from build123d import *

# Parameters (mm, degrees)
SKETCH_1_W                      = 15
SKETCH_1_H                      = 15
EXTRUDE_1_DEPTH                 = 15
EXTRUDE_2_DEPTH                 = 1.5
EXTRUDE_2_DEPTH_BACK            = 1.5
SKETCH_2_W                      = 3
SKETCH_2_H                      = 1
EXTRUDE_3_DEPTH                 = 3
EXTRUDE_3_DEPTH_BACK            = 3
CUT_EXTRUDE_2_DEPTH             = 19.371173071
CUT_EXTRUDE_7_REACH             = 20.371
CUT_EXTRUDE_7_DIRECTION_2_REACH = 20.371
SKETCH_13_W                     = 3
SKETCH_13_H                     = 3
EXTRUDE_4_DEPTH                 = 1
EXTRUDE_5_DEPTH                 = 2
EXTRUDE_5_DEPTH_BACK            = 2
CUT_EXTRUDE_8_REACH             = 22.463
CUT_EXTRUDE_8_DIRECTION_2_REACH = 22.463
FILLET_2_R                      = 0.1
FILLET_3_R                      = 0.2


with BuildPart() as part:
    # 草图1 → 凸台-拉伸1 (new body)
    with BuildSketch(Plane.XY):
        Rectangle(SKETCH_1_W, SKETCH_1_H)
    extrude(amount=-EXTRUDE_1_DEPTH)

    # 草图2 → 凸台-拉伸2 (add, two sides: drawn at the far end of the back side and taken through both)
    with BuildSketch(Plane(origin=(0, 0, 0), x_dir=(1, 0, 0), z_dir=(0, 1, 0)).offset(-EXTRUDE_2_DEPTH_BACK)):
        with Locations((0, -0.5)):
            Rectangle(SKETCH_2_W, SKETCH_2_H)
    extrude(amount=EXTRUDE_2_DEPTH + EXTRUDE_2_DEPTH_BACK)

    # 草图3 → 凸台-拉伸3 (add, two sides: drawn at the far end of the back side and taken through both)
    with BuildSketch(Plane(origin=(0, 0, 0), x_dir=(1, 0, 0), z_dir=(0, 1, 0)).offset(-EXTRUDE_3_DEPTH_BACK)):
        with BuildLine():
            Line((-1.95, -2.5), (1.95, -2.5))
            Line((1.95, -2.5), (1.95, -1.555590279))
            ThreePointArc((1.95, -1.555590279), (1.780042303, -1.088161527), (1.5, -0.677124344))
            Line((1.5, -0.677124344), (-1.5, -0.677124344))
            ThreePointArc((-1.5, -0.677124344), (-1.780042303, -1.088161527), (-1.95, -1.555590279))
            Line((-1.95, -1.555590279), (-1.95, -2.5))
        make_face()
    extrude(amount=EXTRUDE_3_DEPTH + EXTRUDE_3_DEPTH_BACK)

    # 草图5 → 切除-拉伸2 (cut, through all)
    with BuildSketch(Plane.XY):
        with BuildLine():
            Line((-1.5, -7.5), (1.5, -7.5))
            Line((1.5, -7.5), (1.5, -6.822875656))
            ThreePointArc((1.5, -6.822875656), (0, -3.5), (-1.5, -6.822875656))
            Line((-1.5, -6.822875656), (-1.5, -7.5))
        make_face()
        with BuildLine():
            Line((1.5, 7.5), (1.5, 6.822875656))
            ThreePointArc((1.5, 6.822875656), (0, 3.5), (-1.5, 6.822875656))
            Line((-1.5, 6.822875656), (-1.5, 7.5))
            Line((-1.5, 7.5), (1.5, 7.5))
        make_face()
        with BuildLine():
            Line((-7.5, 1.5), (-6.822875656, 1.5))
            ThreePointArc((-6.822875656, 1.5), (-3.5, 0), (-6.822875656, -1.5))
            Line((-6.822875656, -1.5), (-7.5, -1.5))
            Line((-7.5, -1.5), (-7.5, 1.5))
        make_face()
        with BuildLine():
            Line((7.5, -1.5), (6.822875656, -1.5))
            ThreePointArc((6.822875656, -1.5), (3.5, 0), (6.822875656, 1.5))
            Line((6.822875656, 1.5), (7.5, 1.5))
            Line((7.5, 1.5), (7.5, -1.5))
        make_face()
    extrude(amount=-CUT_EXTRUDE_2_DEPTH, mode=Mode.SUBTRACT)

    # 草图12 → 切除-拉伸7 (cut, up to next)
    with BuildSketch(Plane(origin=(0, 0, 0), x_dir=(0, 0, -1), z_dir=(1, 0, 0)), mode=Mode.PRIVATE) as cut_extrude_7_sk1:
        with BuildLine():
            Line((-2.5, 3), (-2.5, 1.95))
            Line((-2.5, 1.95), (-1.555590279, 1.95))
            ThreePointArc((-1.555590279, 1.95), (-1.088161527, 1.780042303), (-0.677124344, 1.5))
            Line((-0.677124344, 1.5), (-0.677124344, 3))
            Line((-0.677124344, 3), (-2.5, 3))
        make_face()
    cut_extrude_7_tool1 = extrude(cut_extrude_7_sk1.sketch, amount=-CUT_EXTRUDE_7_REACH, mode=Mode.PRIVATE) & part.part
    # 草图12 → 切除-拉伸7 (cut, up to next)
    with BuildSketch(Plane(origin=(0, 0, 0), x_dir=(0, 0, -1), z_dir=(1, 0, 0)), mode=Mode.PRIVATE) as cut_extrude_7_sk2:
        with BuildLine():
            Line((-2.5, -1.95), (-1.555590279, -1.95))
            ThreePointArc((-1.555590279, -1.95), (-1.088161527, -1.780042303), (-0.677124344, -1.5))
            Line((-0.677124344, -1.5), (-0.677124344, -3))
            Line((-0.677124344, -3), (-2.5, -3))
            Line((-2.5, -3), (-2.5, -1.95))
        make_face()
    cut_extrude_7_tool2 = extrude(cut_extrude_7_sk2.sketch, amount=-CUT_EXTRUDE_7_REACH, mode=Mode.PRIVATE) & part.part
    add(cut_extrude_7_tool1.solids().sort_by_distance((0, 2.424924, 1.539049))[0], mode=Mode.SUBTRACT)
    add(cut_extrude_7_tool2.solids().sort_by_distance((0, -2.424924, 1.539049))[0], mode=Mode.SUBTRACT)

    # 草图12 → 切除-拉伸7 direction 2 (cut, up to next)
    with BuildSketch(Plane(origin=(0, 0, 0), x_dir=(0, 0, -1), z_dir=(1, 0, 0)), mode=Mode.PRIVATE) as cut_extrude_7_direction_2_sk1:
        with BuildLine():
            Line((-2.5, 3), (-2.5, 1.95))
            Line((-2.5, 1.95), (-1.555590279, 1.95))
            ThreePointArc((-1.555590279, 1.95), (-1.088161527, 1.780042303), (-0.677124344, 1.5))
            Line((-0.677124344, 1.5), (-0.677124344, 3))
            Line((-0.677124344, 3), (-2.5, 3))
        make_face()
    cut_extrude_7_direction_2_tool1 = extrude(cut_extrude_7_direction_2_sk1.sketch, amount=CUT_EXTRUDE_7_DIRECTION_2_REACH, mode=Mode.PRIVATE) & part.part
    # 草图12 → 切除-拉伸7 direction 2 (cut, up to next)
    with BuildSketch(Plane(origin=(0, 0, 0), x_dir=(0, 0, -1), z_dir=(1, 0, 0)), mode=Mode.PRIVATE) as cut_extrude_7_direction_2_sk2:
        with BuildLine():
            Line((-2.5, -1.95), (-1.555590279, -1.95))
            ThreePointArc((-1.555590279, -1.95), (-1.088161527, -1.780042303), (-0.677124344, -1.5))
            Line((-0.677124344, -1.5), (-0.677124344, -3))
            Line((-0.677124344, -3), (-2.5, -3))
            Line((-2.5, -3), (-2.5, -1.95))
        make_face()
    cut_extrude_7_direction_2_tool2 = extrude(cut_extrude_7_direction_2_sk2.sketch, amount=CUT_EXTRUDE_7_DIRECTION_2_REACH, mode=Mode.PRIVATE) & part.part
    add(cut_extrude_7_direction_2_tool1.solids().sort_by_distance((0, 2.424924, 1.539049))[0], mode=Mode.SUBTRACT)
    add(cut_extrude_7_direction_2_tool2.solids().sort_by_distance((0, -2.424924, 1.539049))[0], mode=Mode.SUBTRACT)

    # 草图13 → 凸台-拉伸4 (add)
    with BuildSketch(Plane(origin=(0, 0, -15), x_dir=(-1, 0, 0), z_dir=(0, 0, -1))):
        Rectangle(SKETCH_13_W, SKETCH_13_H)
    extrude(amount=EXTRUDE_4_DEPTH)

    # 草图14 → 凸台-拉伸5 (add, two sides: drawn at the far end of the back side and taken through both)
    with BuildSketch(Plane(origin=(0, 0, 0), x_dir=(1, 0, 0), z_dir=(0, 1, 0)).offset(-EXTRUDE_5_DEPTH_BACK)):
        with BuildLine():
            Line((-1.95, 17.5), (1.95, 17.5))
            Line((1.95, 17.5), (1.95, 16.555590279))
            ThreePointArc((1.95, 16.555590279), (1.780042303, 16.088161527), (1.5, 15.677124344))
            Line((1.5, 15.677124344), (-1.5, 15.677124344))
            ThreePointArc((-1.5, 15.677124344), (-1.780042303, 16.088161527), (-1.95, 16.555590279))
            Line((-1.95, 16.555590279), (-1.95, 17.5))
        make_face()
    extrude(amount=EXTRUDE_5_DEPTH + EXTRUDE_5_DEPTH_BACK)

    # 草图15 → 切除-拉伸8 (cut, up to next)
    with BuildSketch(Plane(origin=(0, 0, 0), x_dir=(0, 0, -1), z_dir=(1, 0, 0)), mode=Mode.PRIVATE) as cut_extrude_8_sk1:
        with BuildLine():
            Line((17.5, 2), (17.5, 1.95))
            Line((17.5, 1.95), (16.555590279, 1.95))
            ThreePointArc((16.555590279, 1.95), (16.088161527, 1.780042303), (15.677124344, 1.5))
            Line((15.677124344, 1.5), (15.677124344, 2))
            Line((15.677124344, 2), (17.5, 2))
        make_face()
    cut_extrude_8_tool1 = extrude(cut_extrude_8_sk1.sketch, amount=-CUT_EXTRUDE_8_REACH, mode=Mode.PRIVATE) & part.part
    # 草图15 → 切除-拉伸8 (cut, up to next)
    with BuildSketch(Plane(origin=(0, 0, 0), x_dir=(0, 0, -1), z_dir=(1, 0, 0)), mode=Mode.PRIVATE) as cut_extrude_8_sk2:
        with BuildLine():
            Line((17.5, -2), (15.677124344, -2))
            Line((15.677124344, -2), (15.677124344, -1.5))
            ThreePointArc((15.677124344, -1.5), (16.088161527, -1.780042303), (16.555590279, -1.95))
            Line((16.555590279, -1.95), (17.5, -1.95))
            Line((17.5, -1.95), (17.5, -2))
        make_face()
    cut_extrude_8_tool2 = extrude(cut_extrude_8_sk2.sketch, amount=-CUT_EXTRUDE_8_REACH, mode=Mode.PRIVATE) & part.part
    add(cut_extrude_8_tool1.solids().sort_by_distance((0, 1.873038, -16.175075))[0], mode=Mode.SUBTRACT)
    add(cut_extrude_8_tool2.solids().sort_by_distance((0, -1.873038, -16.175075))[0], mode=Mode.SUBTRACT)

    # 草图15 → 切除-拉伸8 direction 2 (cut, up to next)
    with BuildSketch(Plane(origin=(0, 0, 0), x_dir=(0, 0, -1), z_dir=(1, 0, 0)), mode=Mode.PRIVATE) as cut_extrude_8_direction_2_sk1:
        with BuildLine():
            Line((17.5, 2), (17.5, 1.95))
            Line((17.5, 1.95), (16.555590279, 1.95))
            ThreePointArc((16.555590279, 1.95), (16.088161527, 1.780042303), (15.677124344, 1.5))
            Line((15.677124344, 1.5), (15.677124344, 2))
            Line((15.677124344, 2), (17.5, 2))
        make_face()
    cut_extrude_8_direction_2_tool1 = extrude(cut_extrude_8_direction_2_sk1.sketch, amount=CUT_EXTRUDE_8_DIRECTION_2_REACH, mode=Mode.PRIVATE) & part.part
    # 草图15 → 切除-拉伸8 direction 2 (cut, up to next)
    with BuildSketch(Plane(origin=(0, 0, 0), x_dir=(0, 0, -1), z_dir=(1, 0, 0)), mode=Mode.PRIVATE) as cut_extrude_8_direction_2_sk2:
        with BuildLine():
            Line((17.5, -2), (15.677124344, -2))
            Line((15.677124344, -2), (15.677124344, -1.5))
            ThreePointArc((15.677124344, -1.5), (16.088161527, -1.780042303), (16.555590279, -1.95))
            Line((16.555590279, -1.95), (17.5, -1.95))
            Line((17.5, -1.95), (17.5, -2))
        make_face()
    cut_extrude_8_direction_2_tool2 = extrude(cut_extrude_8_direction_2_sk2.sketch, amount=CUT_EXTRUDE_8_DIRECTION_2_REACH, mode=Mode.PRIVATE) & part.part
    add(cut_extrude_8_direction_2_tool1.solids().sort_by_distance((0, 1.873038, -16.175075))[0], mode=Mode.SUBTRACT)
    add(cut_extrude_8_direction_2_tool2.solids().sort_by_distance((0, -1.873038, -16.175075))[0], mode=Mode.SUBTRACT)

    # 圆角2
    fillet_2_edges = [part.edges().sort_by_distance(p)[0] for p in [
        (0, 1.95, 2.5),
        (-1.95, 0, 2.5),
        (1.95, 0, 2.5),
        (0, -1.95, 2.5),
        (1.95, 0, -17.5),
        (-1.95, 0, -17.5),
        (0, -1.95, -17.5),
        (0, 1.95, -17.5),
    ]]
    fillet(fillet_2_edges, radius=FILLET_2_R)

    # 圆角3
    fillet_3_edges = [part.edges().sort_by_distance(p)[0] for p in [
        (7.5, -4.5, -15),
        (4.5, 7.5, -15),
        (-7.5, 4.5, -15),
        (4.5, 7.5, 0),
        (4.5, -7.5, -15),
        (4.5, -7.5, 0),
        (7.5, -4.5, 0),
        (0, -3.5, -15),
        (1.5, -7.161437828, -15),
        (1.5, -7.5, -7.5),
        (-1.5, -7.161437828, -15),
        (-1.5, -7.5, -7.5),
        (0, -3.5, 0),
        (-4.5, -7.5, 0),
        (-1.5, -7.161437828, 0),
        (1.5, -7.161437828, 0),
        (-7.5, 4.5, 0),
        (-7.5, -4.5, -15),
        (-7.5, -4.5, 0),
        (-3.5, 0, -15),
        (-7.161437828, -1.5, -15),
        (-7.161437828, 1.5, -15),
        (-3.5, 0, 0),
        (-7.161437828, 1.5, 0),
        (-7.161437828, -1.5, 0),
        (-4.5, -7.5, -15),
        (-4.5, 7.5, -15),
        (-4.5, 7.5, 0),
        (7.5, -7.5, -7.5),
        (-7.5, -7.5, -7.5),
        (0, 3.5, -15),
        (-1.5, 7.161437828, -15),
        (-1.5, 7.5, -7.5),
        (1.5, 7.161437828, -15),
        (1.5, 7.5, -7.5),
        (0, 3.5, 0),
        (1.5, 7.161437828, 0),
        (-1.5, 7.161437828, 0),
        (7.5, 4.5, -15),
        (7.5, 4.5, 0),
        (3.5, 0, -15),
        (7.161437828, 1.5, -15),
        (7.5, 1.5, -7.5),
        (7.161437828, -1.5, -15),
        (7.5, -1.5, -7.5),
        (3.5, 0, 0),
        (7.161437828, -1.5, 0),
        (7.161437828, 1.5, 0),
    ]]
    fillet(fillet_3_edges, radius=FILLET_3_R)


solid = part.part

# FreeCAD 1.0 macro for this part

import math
import FreeCAD as App
import Part
import Sketcher

V = App.Vector


def edges_at(feature, points):
    """Names of the edges that pass closest to the given points."""
    edges = feature.Shape.Edges
    near = lambda p: min(range(len(edges)), key=lambda i: edges[i].distToShape(Part.Vertex(*p))[0])
    return sorted({f"Edge{near(p) + 1}" for p in points})

doc = App.newDocument("Part")
body = doc.addObject("PartDesign::Body", "Body")

# Sketch on XY plane
sketch1 = body.newObject("Sketcher::SketchObject", "Sketch")
sketch1.AttachmentSupport = (doc.getObject("XY_Plane"), [""])
sketch1.MapMode = "FlatFace"
sketch1.addGeometry([
    Part.LineSegment(V(-8, 8, 0), V(-8, -8, 0)),
    Part.LineSegment(V(-8, -8, 0), V(8, -8, 0)),
    Part.LineSegment(V(8, -8, 0), V(8, 8, 0)),
    Part.LineSegment(V(8, 8, 0), V(-8, 8, 0)),
], False)
sketch1.addConstraint([
    Sketcher.Constraint("Coincident", 0, 2, 1, 1),
    Sketcher.Constraint("Coincident", 1, 2, 2, 1),
    Sketcher.Constraint("Coincident", 2, 2, 3, 1),
    Sketcher.Constraint("Coincident", 3, 2, 0, 1),
    Sketcher.Constraint("Vertical", 0),
    Sketcher.Constraint("Horizontal", 1),
    Sketcher.Constraint("Vertical", 2),
    Sketcher.Constraint("Horizontal", 3),
    Sketcher.Constraint("Symmetric", 0, 2, 2, 2, -1, 1),
    Sketcher.Constraint("Equal", 3, 0),
    Sketcher.Constraint("DistanceX", 1, 1, 1, 2, 15.0),
])
pad1 = body.newObject("PartDesign::Pad", "Pad")
pad1.Profile = sketch1
pad1.Length = 15
pad1.Reversed = True

# Sketch on XZ plane
sketch2 = body.newObject("Sketcher::SketchObject", "Sketch001")
sketch2.AttachmentSupport = (doc.getObject("XZ_Plane"), [""])
sketch2.MapMode = "FlatFace"
sketch2.addGeometry([
    Part.LineSegment(V(-1.5, 0, 0), V(-1.5, 1, 0)),
    Part.LineSegment(V(-1.5, 1, 0), V(1.5, 1, 0)),
    Part.LineSegment(V(1.5, 1, 0), V(1.5, 0, 0)),
    Part.LineSegment(V(1.5, 0, 0), V(-1.5, 0, 0)),
], False)
sketch2.addConstraint([
    Sketcher.Constraint("Coincident", 0, 2, 1, 1),
    Sketcher.Constraint("Coincident", 1, 2, 2, 1),
    Sketcher.Constraint("Coincident", 2, 2, 3, 1),
    Sketcher.Constraint("Coincident", 3, 2, 0, 1),
    Sketcher.Constraint("Vertical", 0),
    Sketcher.Constraint("Horizontal", 1),
    Sketcher.Constraint("Vertical", 2),
    Sketcher.Constraint("Horizontal", 3),
    Sketcher.Constraint("Symmetric", 2, 2, 3, 2, -1, 1),
    Sketcher.Constraint("DistanceX", 1, 1, 1, 2, 3.0),
    Sketcher.Constraint("DistanceY", 0, 1, 0, 2, 1.0),
])
pad2 = body.newObject("PartDesign::Pad", "Pad001")
pad2.Profile = sketch2
pad2.Type = "TwoLengths"
pad2.Length = 1.5
pad2.Length2 = 1.5
pad2.Reversed = True

# Sketch on XZ plane
sketch3 = body.newObject("Sketcher::SketchObject", "Sketch002")
sketch3.AttachmentSupport = (doc.getObject("XZ_Plane"), [""])
sketch3.MapMode = "FlatFace"
sketch3.addGeometry([
    Part.LineSegment(V(-1.9, 2.5, 0), V(1.9, 2.5, 0)),  # 0
    Part.LineSegment(V(1.9, 2.5, 0), V(1.9, 1.6, 0)),  # 1
    Part.ArcOfCircle(Part.Circle(V(0, 2, 0), V(0, 0, 1), 2), math.radians(-41), math.radians(-13)),  # 2
    Part.LineSegment(V(1.5, 0.7, 0), V(-1.5, 0.7, 0)),  # 3
    Part.ArcOfCircle(Part.Circle(V(0, 2, 0), V(0, 0, 1), 2), math.radians(-167), math.radians(-139)),  # 4
    Part.LineSegment(V(-1.9, 1.6, 0), V(-1.9, 2.5, 0)),  # 5
], False)
sketch3.addConstraint([
    Sketcher.Constraint("Coincident", 0, 2, 1, 1),
    Sketcher.Constraint("Coincident", 1, 2, 2, 2),
    Sketcher.Constraint("Coincident", 2, 1, 3, 1),
    Sketcher.Constraint("Coincident", 3, 2, 4, 2),
    Sketcher.Constraint("Coincident", 4, 1, 5, 1),
    Sketcher.Constraint("Coincident", 5, 2, 0, 1),
    Sketcher.Constraint("Horizontal", 0),
    Sketcher.Constraint("Vertical", 1),
    Sketcher.Constraint("Horizontal", 3),
    Sketcher.Constraint("Vertical", 5),
    Sketcher.Constraint("Coincident", 4, 3, 2, 3),
    Sketcher.Constraint("Equal", 2, 4),
    Sketcher.Constraint("Symmetric", 1, 2, 4, 1, -2),
    Sketcher.Constraint("Radius", 2, 2.0),
    Sketcher.Constraint("DistanceX", 3, 2, 3, 1, 3.0),
    Sketcher.Constraint("DistanceX", 0, 1, 0, 2, 3.9),
    Sketcher.Constraint("DistanceY", -1, 1, 2, 3, 2.0),
    Sketcher.Constraint("DistanceY", -1, 1, 0, 2, 2.5),
])
pad3 = body.newObject("PartDesign::Pad", "Pad002")
pad3.Profile = sketch3
pad3.Type = "TwoLengths"
pad3.Length = 3
pad3.Length2 = 3
pad3.Reversed = True

# Sketch on XY plane
sketch4 = body.newObject("Sketcher::SketchObject", "Sketch003")
sketch4.AttachmentSupport = (doc.getObject("XY_Plane"), [""])
sketch4.MapMode = "FlatFace"
sketch4.addGeometry([
    Part.LineSegment(V(-1.5, -7.5, 0), V(1.5, -7.5, 0)),  # 0
    Part.LineSegment(V(1.5, -7.5, 0), V(1.5, -6.8, 0)),  # 1
    Part.ArcOfCircle(Part.Circle(V(0, -5.5, 0), V(0, 0, 1), 2), math.radians(-41), math.radians(221)),  # 2
    Part.LineSegment(V(-1.5, -6.8, 0), V(-1.5, -7.5, 0)),  # 3
    Part.LineSegment(V(1.5, 6.8, 0), V(1.5, 7.5, 0)),  # 4
    Part.LineSegment(V(1.5, 7.5, 0), V(-1.5, 7.5, 0)),  # 5
    Part.LineSegment(V(-1.5, 7.5, 0), V(-1.5, 6.8, 0)),  # 6
    Part.ArcOfCircle(Part.Circle(V(0, 5.5, 0), V(0, 0, 1), 2), math.radians(139), math.radians(401)),  # 7
    Part.LineSegment(V(-6.8, 1.5, 0), V(-7.5, 1.5, 0)),  # 8
    Part.LineSegment(V(-7.5, 1.5, 0), V(-7.5, -1.5, 0)),  # 9
    Part.LineSegment(V(-7.5, -1.5, 0), V(-6.8, -1.5, 0)),  # 10
    Part.ArcOfCircle(Part.Circle(V(-5.5, 0, 0), V(0, 0, 1), 2), math.radians(-131), math.radians(131)),  # 11
    Part.LineSegment(V(6.8, -1.5, 0), V(7.5, -1.5, 0)),  # 12
    Part.LineSegment(V(7.5, -1.5, 0), V(7.5, 1.5, 0)),  # 13
    Part.LineSegment(V(7.5, 1.5, 0), V(6.8, 1.5, 0)),  # 14
    Part.ArcOfCircle(Part.Circle(V(5.5, 0, 0), V(0, 0, 1), 2), math.radians(49), math.radians(311)),  # 15
], False)
sketch4.addConstraint([
    Sketcher.Constraint("Coincident", 0, 2, 1, 1),
    Sketcher.Constraint("Coincident", 1, 2, 2, 1),
    Sketcher.Constraint("Coincident", 2, 2, 3, 1),
    Sketcher.Constraint("Coincident", 3, 2, 0, 1),
    Sketcher.Constraint("Coincident", 4, 2, 5, 1),
    Sketcher.Constraint("Coincident", 5, 2, 6, 1),
    Sketcher.Constraint("Coincident", 6, 2, 7, 1),
    Sketcher.Constraint("Coincident", 7, 2, 4, 1),
    Sketcher.Constraint("Coincident", 8, 2, 9, 1),
    Sketcher.Constraint("Coincident", 9, 2, 10, 1),
    Sketcher.Constraint("Coincident", 10, 2, 11, 1),
    Sketcher.Constraint("Coincident", 11, 2, 8, 1),
    Sketcher.Constraint("Coincident", 12, 2, 13, 1),
    Sketcher.Constraint("Coincident", 13, 2, 14, 1),
    Sketcher.Constraint("Coincident", 14, 2, 15, 1),
    Sketcher.Constraint("Coincident", 15, 2, 12, 1),
    Sketcher.Constraint("Horizontal", 0),
    Sketcher.Constraint("Vertical", 1),
    Sketcher.Constraint("Vertical", 3),
    Sketcher.Constraint("Vertical", 4),
    Sketcher.Constraint("Horizontal", 5),
    Sketcher.Constraint("Vertical", 6),
    Sketcher.Constraint("Horizontal", 8),
    Sketcher.Constraint("Vertical", 9),
    Sketcher.Constraint("Horizontal", 10),
    Sketcher.Constraint("Horizontal", 12),
    Sketcher.Constraint("Vertical", 13),
    Sketcher.Constraint("Horizontal", 14),
    Sketcher.Constraint("Equal", 2, 7),
    Sketcher.Constraint("Equal", 7, 11),
    Sketcher.Constraint("Equal", 11, 15),
    Sketcher.Constraint("Symmetric", 2, 3, 7, 3, -1, 1),
    Sketcher.Constraint("Symmetric", 11, 3, 15, 3, -1, 1),
    Sketcher.Constraint("Symmetric", 3, 2, 4, 2, -1, 1),
    Sketcher.Constraint("Symmetric", 8, 2, 12, 2, -1, 1),
    Sketcher.Constraint("Symmetric", 1, 2, 2, 2, -2),
    Sketcher.Constraint("Symmetric", 11, 2, 14, 2, -2),
    Sketcher.Constraint("Horizontal", 6, 2, 7, 2),
    Sketcher.Constraint("Horizontal", 10, 2, 12, 2),
    Sketcher.Constraint("Equal", 14, 1),
    Sketcher.Constraint("Equal", 5, 9),
    Sketcher.Constraint("Radius", 2, 2.0),
    Sketcher.Constraint("DistanceX", 0, 1, 0, 2, 3.0),
    Sketcher.Constraint("DistanceY", 2, 3, 7, 3, 11.0),
    Sketcher.Constraint("DistanceX", 11, 3, 15, 3, 11.0),
    Sketcher.Constraint("DistanceY", 0, 2, 2, 3, 2.0),
])
pocket1 = body.newObject("PartDesign::Pocket", "Pocket")
pocket1.Profile = sketch4
pocket1.Type = "ThroughAll"

# Sketch on YZ plane
sketch5 = body.newObject("Sketcher::SketchObject", "Sketch004")
sketch5.AttachmentSupport = (doc.getObject("YZ_Plane"), [""])
sketch5.MapMode = "FlatFace"
sketch5.addGeometry([
    Part.LineSegment(V(3, 2.5, 0), V(1.9, 2.5, 0)),  # 0
    Part.LineSegment(V(1.9, 2.5, 0), V(1.9, 1.6, 0)),  # 1
    Part.ArcOfCircle(Part.Circle(V(0, 2, 0), V(0, 0, 1), 2), math.radians(-41), math.radians(-13)),  # 2
    Part.LineSegment(V(1.5, 0.7, 0), V(3, 0.7, 0)),  # 3
    Part.LineSegment(V(3, 0.7, 0), V(3, 2.5, 0)),  # 4
], False)
sketch5.addConstraint([
    Sketcher.Constraint("Coincident", 0, 2, 1, 1),
    Sketcher.Constraint("Coincident", 1, 2, 2, 2),
    Sketcher.Constraint("Coincident", 2, 1, 3, 1),
    Sketcher.Constraint("Coincident", 3, 2, 4, 1),
    Sketcher.Constraint("Coincident", 4, 2, 0, 1),
    Sketcher.Constraint("Horizontal", 0),
    Sketcher.Constraint("Vertical", 1),
    Sketcher.Constraint("Horizontal", 3),
    Sketcher.Constraint("Vertical", 4),
    Sketcher.Constraint("PointOnObject", 2, 3, -2),
    Sketcher.Constraint("Radius", 2, 2.0),
    Sketcher.Constraint("DistanceX", 3, 1, 3, 2, 1.5),
    Sketcher.Constraint("DistanceY", -1, 1, 2, 3, 2.0),
    Sketcher.Constraint("DistanceX", -1, 1, 3, 2, 3.0),
    Sketcher.Constraint("DistanceX", 0, 2, 0, 1, 1.05),
    Sketcher.Constraint("DistanceY", -1, 1, 0, 2, 2.5),
])
pocket2 = body.newObject("PartDesign::Pocket", "Pocket001")
pocket2.Profile = sketch5
pocket2.Type = "UpToFirst"

# Sketch on YZ plane
sketch6 = body.newObject("Sketcher::SketchObject", "Sketch005")
sketch6.AttachmentSupport = (doc.getObject("YZ_Plane"), [""])
sketch6.MapMode = "FlatFace"
sketch6.addGeometry([
    Part.LineSegment(V(-1.9, 1.6, 0), V(-1.9, 2.5, 0)),  # 0
    Part.LineSegment(V(-1.9, 2.5, 0), V(-3, 2.5, 0)),  # 1
    Part.LineSegment(V(-3, 2.5, 0), V(-3, 0.7, 0)),  # 2
    Part.LineSegment(V(-3, 0.7, 0), V(-1.5, 0.7, 0)),  # 3
    Part.ArcOfCircle(Part.Circle(V(0, 2, 0), V(0, 0, 1), 2), math.radians(-167), math.radians(-139)),  # 4
], False)
sketch6.addConstraint([
    Sketcher.Constraint("Coincident", 0, 2, 1, 1),
    Sketcher.Constraint("Coincident", 1, 2, 2, 1),
    Sketcher.Constraint("Coincident", 2, 2, 3, 1),
    Sketcher.Constraint("Coincident", 3, 2, 4, 2),
    Sketcher.Constraint("Coincident", 4, 1, 0, 1),
    Sketcher.Constraint("Vertical", 0),
    Sketcher.Constraint("Horizontal", 1),
    Sketcher.Constraint("Vertical", 2),
    Sketcher.Constraint("Horizontal", 3),
    Sketcher.Constraint("PointOnObject", 4, 3, -2),
    Sketcher.Constraint("Radius", 4, 2.0),
    Sketcher.Constraint("DistanceX", 3, 1, 3, 2, 1.5),
    Sketcher.Constraint("DistanceY", -1, 1, 4, 3, 2.0),
    Sketcher.Constraint("DistanceX", 1, 2, -1, 1, 3.0),
    Sketcher.Constraint("DistanceX", 1, 2, 1, 1, 1.05),
    Sketcher.Constraint("DistanceY", -1, 1, 0, 2, 2.5),
])
pocket3 = body.newObject("PartDesign::Pocket", "Pocket002")
pocket3.Profile = sketch6
pocket3.Type = "UpToFirst"

# Sketch on YZ plane
sketch7 = body.newObject("Sketcher::SketchObject", "Sketch006")
sketch7.AttachmentSupport = (doc.getObject("YZ_Plane"), [""])
sketch7.MapMode = "FlatFace"
sketch7.addGeometry([
    Part.LineSegment(V(3, 2.5, 0), V(1.9, 2.5, 0)),  # 0
    Part.LineSegment(V(1.9, 2.5, 0), V(1.9, 1.6, 0)),  # 1
    Part.ArcOfCircle(Part.Circle(V(0, 2, 0), V(0, 0, 1), 2), math.radians(-41), math.radians(-13)),  # 2
    Part.LineSegment(V(1.5, 0.7, 0), V(3, 0.7, 0)),  # 3
    Part.LineSegment(V(3, 0.7, 0), V(3, 2.5, 0)),  # 4
], False)
sketch7.addConstraint([
    Sketcher.Constraint("Coincident", 0, 2, 1, 1),
    Sketcher.Constraint("Coincident", 1, 2, 2, 2),
    Sketcher.Constraint("Coincident", 2, 1, 3, 1),
    Sketcher.Constraint("Coincident", 3, 2, 4, 1),
    Sketcher.Constraint("Coincident", 4, 2, 0, 1),
    Sketcher.Constraint("Horizontal", 0),
    Sketcher.Constraint("Vertical", 1),
    Sketcher.Constraint("Horizontal", 3),
    Sketcher.Constraint("Vertical", 4),
    Sketcher.Constraint("PointOnObject", 2, 3, -2),
    Sketcher.Constraint("Radius", 2, 2.0),
    Sketcher.Constraint("DistanceX", 3, 1, 3, 2, 1.5),
    Sketcher.Constraint("DistanceY", -1, 1, 2, 3, 2.0),
    Sketcher.Constraint("DistanceX", -1, 1, 3, 2, 3.0),
    Sketcher.Constraint("DistanceX", 0, 2, 0, 1, 1.05),
    Sketcher.Constraint("DistanceY", -1, 1, 0, 2, 2.5),
])
pocket4 = body.newObject("PartDesign::Pocket", "Pocket003")
pocket4.Profile = sketch7
pocket4.Type = "UpToFirst"
pocket4.Reversed = True

# Sketch on YZ plane
sketch8 = body.newObject("Sketcher::SketchObject", "Sketch007")
sketch8.AttachmentSupport = (doc.getObject("YZ_Plane"), [""])
sketch8.MapMode = "FlatFace"
sketch8.addGeometry([
    Part.LineSegment(V(-1.9, 1.6, 0), V(-1.9, 2.5, 0)),  # 0
    Part.LineSegment(V(-1.9, 2.5, 0), V(-3, 2.5, 0)),  # 1
    Part.LineSegment(V(-3, 2.5, 0), V(-3, 0.7, 0)),  # 2
    Part.LineSegment(V(-3, 0.7, 0), V(-1.5, 0.7, 0)),  # 3
    Part.ArcOfCircle(Part.Circle(V(0, 2, 0), V(0, 0, 1), 2), math.radians(-167), math.radians(-139)),  # 4
], False)
sketch8.addConstraint([
    Sketcher.Constraint("Coincident", 0, 2, 1, 1),
    Sketcher.Constraint("Coincident", 1, 2, 2, 1),
    Sketcher.Constraint("Coincident", 2, 2, 3, 1),
    Sketcher.Constraint("Coincident", 3, 2, 4, 2),
    Sketcher.Constraint("Coincident", 4, 1, 0, 1),
    Sketcher.Constraint("Vertical", 0),
    Sketcher.Constraint("Horizontal", 1),
    Sketcher.Constraint("Vertical", 2),
    Sketcher.Constraint("Horizontal", 3),
    Sketcher.Constraint("PointOnObject", 4, 3, -2),
    Sketcher.Constraint("Radius", 4, 2.0),
    Sketcher.Constraint("DistanceX", 3, 1, 3, 2, 1.5),
    Sketcher.Constraint("DistanceY", -1, 1, 4, 3, 2.0),
    Sketcher.Constraint("DistanceX", 1, 2, -1, 1, 3.0),
    Sketcher.Constraint("DistanceX", 1, 2, 1, 1, 1.05),
    Sketcher.Constraint("DistanceY", -1, 1, 0, 2, 2.5),
])
pocket5 = body.newObject("PartDesign::Pocket", "Pocket004")
pocket5.Profile = sketch8
pocket5.Type = "UpToFirst"
pocket5.Reversed = True

# Sketch on XY plane
sketch9 = body.newObject("Sketcher::SketchObject", "Sketch008")
sketch9.AttachmentSupport = (doc.getObject("XY_Plane"), [""])
sketch9.MapMode = "FlatFace"
sketch9.AttachmentOffset = App.Placement(V(0, 0, -15), App.Rotation())
sketch9.addGeometry([
    Part.LineSegment(V(1.5, 1.5, 0), V(1.5, -1.5, 0)),
    Part.LineSegment(V(1.5, -1.5, 0), V(-1.5, -1.5, 0)),
    Part.LineSegment(V(-1.5, -1.5, 0), V(-1.5, 1.5, 0)),
    Part.LineSegment(V(-1.5, 1.5, 0), V(1.5, 1.5, 0)),
], False)
sketch9.addConstraint([
    Sketcher.Constraint("Coincident", 0, 2, 1, 1),
    Sketcher.Constraint("Coincident", 1, 2, 2, 1),
    Sketcher.Constraint("Coincident", 2, 2, 3, 1),
    Sketcher.Constraint("Coincident", 3, 2, 0, 1),
    Sketcher.Constraint("Vertical", 0),
    Sketcher.Constraint("Horizontal", 1),
    Sketcher.Constraint("Vertical", 2),
    Sketcher.Constraint("Horizontal", 3),
    Sketcher.Constraint("Symmetric", 0, 2, 2, 2, -1, 1),
    Sketcher.Constraint("Equal", 3, 0),
    Sketcher.Constraint("DistanceX", 1, 2, 1, 1, 3.0),
])
pad4 = body.newObject("PartDesign::Pad", "Pad003")
pad4.Profile = sketch9
pad4.Length = 1
pad4.Reversed = True

# Sketch on XZ plane
sketch10 = body.newObject("Sketcher::SketchObject", "Sketch009")
sketch10.AttachmentSupport = (doc.getObject("XZ_Plane"), [""])
sketch10.MapMode = "FlatFace"
sketch10.addGeometry([
    Part.LineSegment(V(1.9, -17.5, 0), V(-1.9, -17.5, 0)),  # 0
    Part.LineSegment(V(-1.9, -17.5, 0), V(-1.9, -16.6, 0)),  # 1
    Part.ArcOfCircle(Part.Circle(V(0, -17, 0), V(0, 0, 1), 2), math.radians(139), math.radians(167)),  # 2
    Part.LineSegment(V(-1.5, -15.7, 0), V(1.5, -15.7, 0)),  # 3
    Part.ArcOfCircle(Part.Circle(V(0, -17, 0), V(0, 0, 1), 2), math.radians(13), math.radians(41)),  # 4
    Part.LineSegment(V(1.9, -16.6, 0), V(1.9, -17.5, 0)),  # 5
], False)
sketch10.addConstraint([
    Sketcher.Constraint("Coincident", 0, 2, 1, 1),
    Sketcher.Constraint("Coincident", 1, 2, 2, 2),
    Sketcher.Constraint("Coincident", 2, 1, 3, 1),
    Sketcher.Constraint("Coincident", 3, 2, 4, 2),
    Sketcher.Constraint("Coincident", 4, 1, 5, 1),
    Sketcher.Constraint("Coincident", 5, 2, 0, 1),
    Sketcher.Constraint("Horizontal", 0),
    Sketcher.Constraint("Vertical", 1),
    Sketcher.Constraint("Horizontal", 3),
    Sketcher.Constraint("Vertical", 5),
    Sketcher.Constraint("Coincident", 4, 3, 2, 3),
    Sketcher.Constraint("Equal", 2, 4),
    Sketcher.Constraint("Symmetric", 1, 2, 4, 1, -2),
    Sketcher.Constraint("Radius", 2, 2.0),
    Sketcher.Constraint("DistanceX", 3, 1, 3, 2, 3.0),
    Sketcher.Constraint("DistanceX", 0, 2, 0, 1, 3.9),
    Sketcher.Constraint("DistanceY", 2, 3, -1, 1, 17.0),
    Sketcher.Constraint("DistanceY", 0, 2, -1, 1, 17.5),
])
pad5 = body.newObject("PartDesign::Pad", "Pad004")
pad5.Profile = sketch10
pad5.Type = "TwoLengths"
pad5.Length = 2
pad5.Length2 = 2
pad5.Reversed = True

# Sketch on YZ plane
sketch11 = body.newObject("Sketcher::SketchObject", "Sketch010")
sketch11.AttachmentSupport = (doc.getObject("YZ_Plane"), [""])
sketch11.MapMode = "FlatFace"
sketch11.addGeometry([
    Part.LineSegment(V(1.95, -17.5, 0), V(2, -17.5, 0)),  # 0
    Part.LineSegment(V(2, -17.5, 0), V(2, -15.68, 0)),  # 1
    Part.LineSegment(V(2, -15.68, 0), V(1.5, -15.68, 0)),  # 2
    Part.ArcOfCircle(Part.Circle(V(0, -17, 0), V(0, 0, 1), 2), math.radians(13), math.radians(41)),  # 3
    Part.LineSegment(V(1.95, -16.56, 0), V(1.95, -17.5, 0)),  # 4
], False)
sketch11.addConstraint([
    Sketcher.Constraint("Coincident", 0, 2, 1, 1),
    Sketcher.Constraint("Coincident", 1, 2, 2, 1),
    Sketcher.Constraint("Coincident", 2, 2, 3, 2),
    Sketcher.Constraint("Coincident", 3, 1, 4, 1),
    Sketcher.Constraint("Coincident", 4, 2, 0, 1),
    Sketcher.Constraint("Horizontal", 0),
    Sketcher.Constraint("Vertical", 1),
    Sketcher.Constraint("Horizontal", 2),
    Sketcher.Constraint("Vertical", 4),
    Sketcher.Constraint("PointOnObject", 3, 3, -2),
    Sketcher.Constraint("Radius", 3, 2.0),
    Sketcher.Constraint("DistanceX", 2, 2, 2, 1, 0.5),
    Sketcher.Constraint("DistanceY", 3, 3, -1, 1, 17.0),
    Sketcher.Constraint("DistanceX", -1, 1, 0, 2, 2.0),
    Sketcher.Constraint("DistanceX", 0, 1, 0, 2, 0.05),
    Sketcher.Constraint("DistanceY", 0, 2, -1, 1, 17.5),
])
pocket6 = body.newObject("PartDesign::Pocket", "Pocket005")
pocket6.Profile = sketch11
pocket6.Type = "UpToFirst"

# Sketch on YZ plane
sketch12 = body.newObject("Sketcher::SketchObject", "Sketch011")
sketch12.AttachmentSupport = (doc.getObject("YZ_Plane"), [""])
sketch12.MapMode = "FlatFace"
sketch12.addGeometry([
    Part.LineSegment(V(-2, -15.68, 0), V(-2, -17.5, 0)),  # 0
    Part.LineSegment(V(-2, -17.5, 0), V(-1.95, -17.5, 0)),  # 1
    Part.LineSegment(V(-1.95, -17.5, 0), V(-1.95, -16.56, 0)),  # 2
    Part.ArcOfCircle(Part.Circle(V(0, -17, 0), V(0, 0, 1), 2), math.radians(139), math.radians(167)),  # 3
    Part.LineSegment(V(-1.5, -15.68, 0), V(-2, -15.68, 0)),  # 4
], False)
sketch12.addConstraint([
    Sketcher.Constraint("Coincident", 0, 2, 1, 1),
    Sketcher.Constraint("Coincident", 1, 2, 2, 1),
    Sketcher.Constraint("Coincident", 2, 2, 3, 2),
    Sketcher.Constraint("Coincident", 3, 1, 4, 1),
    Sketcher.Constraint("Coincident", 4, 2, 0, 1),
    Sketcher.Constraint("Vertical", 0),
    Sketcher.Constraint("Horizontal", 1),
    Sketcher.Constraint("Vertical", 2),
    Sketcher.Constraint("Horizontal", 4),
    Sketcher.Constraint("PointOnObject", 3, 3, -2),
    Sketcher.Constraint("Radius", 3, 2.0),
    Sketcher.Constraint("DistanceX", 4, 2, 4, 1, 0.5),
    Sketcher.Constraint("DistanceY", 3, 3, -1, 1, 17.0),
    Sketcher.Constraint("DistanceX", 0, 2, -1, 1, 2.0),
    Sketcher.Constraint("DistanceX", 1, 1, 1, 2, 0.05),
    Sketcher.Constraint("DistanceY", 0, 2, -1, 1, 17.5),
])
pocket7 = body.newObject("PartDesign::Pocket", "Pocket006")
pocket7.Profile = sketch12
pocket7.Type = "UpToFirst"

# Sketch on YZ plane
sketch13 = body.newObject("Sketcher::SketchObject", "Sketch012")
sketch13.AttachmentSupport = (doc.getObject("YZ_Plane"), [""])
sketch13.MapMode = "FlatFace"
sketch13.addGeometry([
    Part.LineSegment(V(1.95, -17.5, 0), V(2, -17.5, 0)),  # 0
    Part.LineSegment(V(2, -17.5, 0), V(2, -15.68, 0)),  # 1
    Part.LineSegment(V(2, -15.68, 0), V(1.5, -15.68, 0)),  # 2
    Part.ArcOfCircle(Part.Circle(V(0, -17, 0), V(0, 0, 1), 2), math.radians(13), math.radians(41)),  # 3
    Part.LineSegment(V(1.95, -16.56, 0), V(1.95, -17.5, 0)),  # 4
], False)
sketch13.addConstraint([
    Sketcher.Constraint("Coincident", 0, 2, 1, 1),
    Sketcher.Constraint("Coincident", 1, 2, 2, 1),
    Sketcher.Constraint("Coincident", 2, 2, 3, 2),
    Sketcher.Constraint("Coincident", 3, 1, 4, 1),
    Sketcher.Constraint("Coincident", 4, 2, 0, 1),
    Sketcher.Constraint("Horizontal", 0),
    Sketcher.Constraint("Vertical", 1),
    Sketcher.Constraint("Horizontal", 2),
    Sketcher.Constraint("Vertical", 4),
    Sketcher.Constraint("PointOnObject", 3, 3, -2),
    Sketcher.Constraint("Radius", 3, 2.0),
    Sketcher.Constraint("DistanceX", 2, 2, 2, 1, 0.5),
    Sketcher.Constraint("DistanceY", 3, 3, -1, 1, 17.0),
    Sketcher.Constraint("DistanceX", -1, 1, 0, 2, 2.0),
    Sketcher.Constraint("DistanceX", 0, 1, 0, 2, 0.05),
    Sketcher.Constraint("DistanceY", 0, 2, -1, 1, 17.5),
])
pocket8 = body.newObject("PartDesign::Pocket", "Pocket007")
pocket8.Profile = sketch13
pocket8.Type = "UpToFirst"
pocket8.Reversed = True

# Sketch on YZ plane
sketch14 = body.newObject("Sketcher::SketchObject", "Sketch013")
sketch14.AttachmentSupport = (doc.getObject("YZ_Plane"), [""])
sketch14.MapMode = "FlatFace"
sketch14.addGeometry([
    Part.LineSegment(V(-2, -15.68, 0), V(-2, -17.5, 0)),  # 0
    Part.LineSegment(V(-2, -17.5, 0), V(-1.95, -17.5, 0)),  # 1
    Part.LineSegment(V(-1.95, -17.5, 0), V(-1.95, -16.56, 0)),  # 2
    Part.ArcOfCircle(Part.Circle(V(0, -17, 0), V(0, 0, 1), 2), math.radians(139), math.radians(167)),  # 3
    Part.LineSegment(V(-1.5, -15.68, 0), V(-2, -15.68, 0)),  # 4
], False)
sketch14.addConstraint([
    Sketcher.Constraint("Coincident", 0, 2, 1, 1),
    Sketcher.Constraint("Coincident", 1, 2, 2, 1),
    Sketcher.Constraint("Coincident", 2, 2, 3, 2),
    Sketcher.Constraint("Coincident", 3, 1, 4, 1),
    Sketcher.Constraint("Coincident", 4, 2, 0, 1),
    Sketcher.Constraint("Vertical", 0),
    Sketcher.Constraint("Horizontal", 1),
    Sketcher.Constraint("Vertical", 2),
    Sketcher.Constraint("Horizontal", 4),
    Sketcher.Constraint("PointOnObject", 3, 3, -2),
    Sketcher.Constraint("Radius", 3, 2.0),
    Sketcher.Constraint("DistanceX", 4, 2, 4, 1, 0.5),
    Sketcher.Constraint("DistanceY", 3, 3, -1, 1, 17.0),
    Sketcher.Constraint("DistanceX", 0, 2, -1, 1, 2.0),
    Sketcher.Constraint("DistanceX", 1, 1, 1, 2, 0.05),
    Sketcher.Constraint("DistanceY", 0, 2, -1, 1, 17.5),
])
pocket9 = body.newObject("PartDesign::Pocket", "Pocket008")
pocket9.Profile = sketch14
pocket9.Type = "UpToFirst"
pocket9.Reversed = True
doc.recompute()

fillet = body.newObject("PartDesign::Fillet", "Fillet")
fillet.Base = (pocket9, edges_at(pocket9, [
    (0, 1.95, 2.5),
    (-1.95, 0, 2.5),
    (1.95, 0, 2.5),
    (0, -1.95, 2.5),
    (1.95, 0, -17.5),
    (-1.95, 0, -17.5),
    (0, -1.95, -17.5),
    (0, 1.95, -17.5),
]))
fillet.Radius = 0.1
doc.recompute()

fillet2 = body.newObject("PartDesign::Fillet", "Fillet001")
fillet2.Base = (fillet, edges_at(fillet, [
    (7.5, -4.5, -15),
    (4.5, 7.5, -15),
    (-7.5, 4.5, -15),
    (4.5, 7.5, 0),
    (4.5, -7.5, -15),
    (4.5, -7.5, 0),
    (7.5, -4.5, 0),
    (0, -3.5, -15),
    (1.5, -7.161, -15),
    (1.5, -7.5, -7.5),
    (-1.5, -7.161, -15),
    (-1.5, -7.5, -7.5),
    (0, -3.5, 0),
    (-4.5, -7.5, 0),
    (-1.5, -7.161, 0),
    (1.5, -7.161, 0),
    (-7.5, 4.5, 0),
    (-7.5, -4.5, -15),
    (-7.5, -4.5, 0),
    (-3.5, 0, -15),
    (-7.161, -1.5, -15),
    (-7.161, 1.5, -15),
    (-3.5, 0, 0),
    (-7.161, 1.5, 0),
    (-7.161, -1.5, 0),
    (-4.5, -7.5, -15),
    (-4.5, 7.5, -15),
    (-4.5, 7.5, 0),
    (7.5, -7.5, -7.5),
    (-7.5, -7.5, -7.5),
    (0, 3.5, -15),
    (-1.5, 7.161, -15),
    (-1.5, 7.5, -7.5),
    (1.5, 7.161, -15),
    (1.5, 7.5, -7.5),
    (0, 3.5, 0),
    (1.5, 7.161, 0),
    (-1.5, 7.161, 0),
    (7.5, 4.5, -15),
    (7.5, 4.5, 0),
    (3.5, 0, -15),
    (7.161, 1.5, -15),
    (7.5, 1.5, -7.5),
    (7.161, -1.5, -15),
    (7.5, -1.5, -7.5),
    (3.5, 0, 0),
    (7.161, -1.5, 0),
    (7.161, 1.5, 0),
]))
fillet2.Radius = 0.2

doc.recompute()
